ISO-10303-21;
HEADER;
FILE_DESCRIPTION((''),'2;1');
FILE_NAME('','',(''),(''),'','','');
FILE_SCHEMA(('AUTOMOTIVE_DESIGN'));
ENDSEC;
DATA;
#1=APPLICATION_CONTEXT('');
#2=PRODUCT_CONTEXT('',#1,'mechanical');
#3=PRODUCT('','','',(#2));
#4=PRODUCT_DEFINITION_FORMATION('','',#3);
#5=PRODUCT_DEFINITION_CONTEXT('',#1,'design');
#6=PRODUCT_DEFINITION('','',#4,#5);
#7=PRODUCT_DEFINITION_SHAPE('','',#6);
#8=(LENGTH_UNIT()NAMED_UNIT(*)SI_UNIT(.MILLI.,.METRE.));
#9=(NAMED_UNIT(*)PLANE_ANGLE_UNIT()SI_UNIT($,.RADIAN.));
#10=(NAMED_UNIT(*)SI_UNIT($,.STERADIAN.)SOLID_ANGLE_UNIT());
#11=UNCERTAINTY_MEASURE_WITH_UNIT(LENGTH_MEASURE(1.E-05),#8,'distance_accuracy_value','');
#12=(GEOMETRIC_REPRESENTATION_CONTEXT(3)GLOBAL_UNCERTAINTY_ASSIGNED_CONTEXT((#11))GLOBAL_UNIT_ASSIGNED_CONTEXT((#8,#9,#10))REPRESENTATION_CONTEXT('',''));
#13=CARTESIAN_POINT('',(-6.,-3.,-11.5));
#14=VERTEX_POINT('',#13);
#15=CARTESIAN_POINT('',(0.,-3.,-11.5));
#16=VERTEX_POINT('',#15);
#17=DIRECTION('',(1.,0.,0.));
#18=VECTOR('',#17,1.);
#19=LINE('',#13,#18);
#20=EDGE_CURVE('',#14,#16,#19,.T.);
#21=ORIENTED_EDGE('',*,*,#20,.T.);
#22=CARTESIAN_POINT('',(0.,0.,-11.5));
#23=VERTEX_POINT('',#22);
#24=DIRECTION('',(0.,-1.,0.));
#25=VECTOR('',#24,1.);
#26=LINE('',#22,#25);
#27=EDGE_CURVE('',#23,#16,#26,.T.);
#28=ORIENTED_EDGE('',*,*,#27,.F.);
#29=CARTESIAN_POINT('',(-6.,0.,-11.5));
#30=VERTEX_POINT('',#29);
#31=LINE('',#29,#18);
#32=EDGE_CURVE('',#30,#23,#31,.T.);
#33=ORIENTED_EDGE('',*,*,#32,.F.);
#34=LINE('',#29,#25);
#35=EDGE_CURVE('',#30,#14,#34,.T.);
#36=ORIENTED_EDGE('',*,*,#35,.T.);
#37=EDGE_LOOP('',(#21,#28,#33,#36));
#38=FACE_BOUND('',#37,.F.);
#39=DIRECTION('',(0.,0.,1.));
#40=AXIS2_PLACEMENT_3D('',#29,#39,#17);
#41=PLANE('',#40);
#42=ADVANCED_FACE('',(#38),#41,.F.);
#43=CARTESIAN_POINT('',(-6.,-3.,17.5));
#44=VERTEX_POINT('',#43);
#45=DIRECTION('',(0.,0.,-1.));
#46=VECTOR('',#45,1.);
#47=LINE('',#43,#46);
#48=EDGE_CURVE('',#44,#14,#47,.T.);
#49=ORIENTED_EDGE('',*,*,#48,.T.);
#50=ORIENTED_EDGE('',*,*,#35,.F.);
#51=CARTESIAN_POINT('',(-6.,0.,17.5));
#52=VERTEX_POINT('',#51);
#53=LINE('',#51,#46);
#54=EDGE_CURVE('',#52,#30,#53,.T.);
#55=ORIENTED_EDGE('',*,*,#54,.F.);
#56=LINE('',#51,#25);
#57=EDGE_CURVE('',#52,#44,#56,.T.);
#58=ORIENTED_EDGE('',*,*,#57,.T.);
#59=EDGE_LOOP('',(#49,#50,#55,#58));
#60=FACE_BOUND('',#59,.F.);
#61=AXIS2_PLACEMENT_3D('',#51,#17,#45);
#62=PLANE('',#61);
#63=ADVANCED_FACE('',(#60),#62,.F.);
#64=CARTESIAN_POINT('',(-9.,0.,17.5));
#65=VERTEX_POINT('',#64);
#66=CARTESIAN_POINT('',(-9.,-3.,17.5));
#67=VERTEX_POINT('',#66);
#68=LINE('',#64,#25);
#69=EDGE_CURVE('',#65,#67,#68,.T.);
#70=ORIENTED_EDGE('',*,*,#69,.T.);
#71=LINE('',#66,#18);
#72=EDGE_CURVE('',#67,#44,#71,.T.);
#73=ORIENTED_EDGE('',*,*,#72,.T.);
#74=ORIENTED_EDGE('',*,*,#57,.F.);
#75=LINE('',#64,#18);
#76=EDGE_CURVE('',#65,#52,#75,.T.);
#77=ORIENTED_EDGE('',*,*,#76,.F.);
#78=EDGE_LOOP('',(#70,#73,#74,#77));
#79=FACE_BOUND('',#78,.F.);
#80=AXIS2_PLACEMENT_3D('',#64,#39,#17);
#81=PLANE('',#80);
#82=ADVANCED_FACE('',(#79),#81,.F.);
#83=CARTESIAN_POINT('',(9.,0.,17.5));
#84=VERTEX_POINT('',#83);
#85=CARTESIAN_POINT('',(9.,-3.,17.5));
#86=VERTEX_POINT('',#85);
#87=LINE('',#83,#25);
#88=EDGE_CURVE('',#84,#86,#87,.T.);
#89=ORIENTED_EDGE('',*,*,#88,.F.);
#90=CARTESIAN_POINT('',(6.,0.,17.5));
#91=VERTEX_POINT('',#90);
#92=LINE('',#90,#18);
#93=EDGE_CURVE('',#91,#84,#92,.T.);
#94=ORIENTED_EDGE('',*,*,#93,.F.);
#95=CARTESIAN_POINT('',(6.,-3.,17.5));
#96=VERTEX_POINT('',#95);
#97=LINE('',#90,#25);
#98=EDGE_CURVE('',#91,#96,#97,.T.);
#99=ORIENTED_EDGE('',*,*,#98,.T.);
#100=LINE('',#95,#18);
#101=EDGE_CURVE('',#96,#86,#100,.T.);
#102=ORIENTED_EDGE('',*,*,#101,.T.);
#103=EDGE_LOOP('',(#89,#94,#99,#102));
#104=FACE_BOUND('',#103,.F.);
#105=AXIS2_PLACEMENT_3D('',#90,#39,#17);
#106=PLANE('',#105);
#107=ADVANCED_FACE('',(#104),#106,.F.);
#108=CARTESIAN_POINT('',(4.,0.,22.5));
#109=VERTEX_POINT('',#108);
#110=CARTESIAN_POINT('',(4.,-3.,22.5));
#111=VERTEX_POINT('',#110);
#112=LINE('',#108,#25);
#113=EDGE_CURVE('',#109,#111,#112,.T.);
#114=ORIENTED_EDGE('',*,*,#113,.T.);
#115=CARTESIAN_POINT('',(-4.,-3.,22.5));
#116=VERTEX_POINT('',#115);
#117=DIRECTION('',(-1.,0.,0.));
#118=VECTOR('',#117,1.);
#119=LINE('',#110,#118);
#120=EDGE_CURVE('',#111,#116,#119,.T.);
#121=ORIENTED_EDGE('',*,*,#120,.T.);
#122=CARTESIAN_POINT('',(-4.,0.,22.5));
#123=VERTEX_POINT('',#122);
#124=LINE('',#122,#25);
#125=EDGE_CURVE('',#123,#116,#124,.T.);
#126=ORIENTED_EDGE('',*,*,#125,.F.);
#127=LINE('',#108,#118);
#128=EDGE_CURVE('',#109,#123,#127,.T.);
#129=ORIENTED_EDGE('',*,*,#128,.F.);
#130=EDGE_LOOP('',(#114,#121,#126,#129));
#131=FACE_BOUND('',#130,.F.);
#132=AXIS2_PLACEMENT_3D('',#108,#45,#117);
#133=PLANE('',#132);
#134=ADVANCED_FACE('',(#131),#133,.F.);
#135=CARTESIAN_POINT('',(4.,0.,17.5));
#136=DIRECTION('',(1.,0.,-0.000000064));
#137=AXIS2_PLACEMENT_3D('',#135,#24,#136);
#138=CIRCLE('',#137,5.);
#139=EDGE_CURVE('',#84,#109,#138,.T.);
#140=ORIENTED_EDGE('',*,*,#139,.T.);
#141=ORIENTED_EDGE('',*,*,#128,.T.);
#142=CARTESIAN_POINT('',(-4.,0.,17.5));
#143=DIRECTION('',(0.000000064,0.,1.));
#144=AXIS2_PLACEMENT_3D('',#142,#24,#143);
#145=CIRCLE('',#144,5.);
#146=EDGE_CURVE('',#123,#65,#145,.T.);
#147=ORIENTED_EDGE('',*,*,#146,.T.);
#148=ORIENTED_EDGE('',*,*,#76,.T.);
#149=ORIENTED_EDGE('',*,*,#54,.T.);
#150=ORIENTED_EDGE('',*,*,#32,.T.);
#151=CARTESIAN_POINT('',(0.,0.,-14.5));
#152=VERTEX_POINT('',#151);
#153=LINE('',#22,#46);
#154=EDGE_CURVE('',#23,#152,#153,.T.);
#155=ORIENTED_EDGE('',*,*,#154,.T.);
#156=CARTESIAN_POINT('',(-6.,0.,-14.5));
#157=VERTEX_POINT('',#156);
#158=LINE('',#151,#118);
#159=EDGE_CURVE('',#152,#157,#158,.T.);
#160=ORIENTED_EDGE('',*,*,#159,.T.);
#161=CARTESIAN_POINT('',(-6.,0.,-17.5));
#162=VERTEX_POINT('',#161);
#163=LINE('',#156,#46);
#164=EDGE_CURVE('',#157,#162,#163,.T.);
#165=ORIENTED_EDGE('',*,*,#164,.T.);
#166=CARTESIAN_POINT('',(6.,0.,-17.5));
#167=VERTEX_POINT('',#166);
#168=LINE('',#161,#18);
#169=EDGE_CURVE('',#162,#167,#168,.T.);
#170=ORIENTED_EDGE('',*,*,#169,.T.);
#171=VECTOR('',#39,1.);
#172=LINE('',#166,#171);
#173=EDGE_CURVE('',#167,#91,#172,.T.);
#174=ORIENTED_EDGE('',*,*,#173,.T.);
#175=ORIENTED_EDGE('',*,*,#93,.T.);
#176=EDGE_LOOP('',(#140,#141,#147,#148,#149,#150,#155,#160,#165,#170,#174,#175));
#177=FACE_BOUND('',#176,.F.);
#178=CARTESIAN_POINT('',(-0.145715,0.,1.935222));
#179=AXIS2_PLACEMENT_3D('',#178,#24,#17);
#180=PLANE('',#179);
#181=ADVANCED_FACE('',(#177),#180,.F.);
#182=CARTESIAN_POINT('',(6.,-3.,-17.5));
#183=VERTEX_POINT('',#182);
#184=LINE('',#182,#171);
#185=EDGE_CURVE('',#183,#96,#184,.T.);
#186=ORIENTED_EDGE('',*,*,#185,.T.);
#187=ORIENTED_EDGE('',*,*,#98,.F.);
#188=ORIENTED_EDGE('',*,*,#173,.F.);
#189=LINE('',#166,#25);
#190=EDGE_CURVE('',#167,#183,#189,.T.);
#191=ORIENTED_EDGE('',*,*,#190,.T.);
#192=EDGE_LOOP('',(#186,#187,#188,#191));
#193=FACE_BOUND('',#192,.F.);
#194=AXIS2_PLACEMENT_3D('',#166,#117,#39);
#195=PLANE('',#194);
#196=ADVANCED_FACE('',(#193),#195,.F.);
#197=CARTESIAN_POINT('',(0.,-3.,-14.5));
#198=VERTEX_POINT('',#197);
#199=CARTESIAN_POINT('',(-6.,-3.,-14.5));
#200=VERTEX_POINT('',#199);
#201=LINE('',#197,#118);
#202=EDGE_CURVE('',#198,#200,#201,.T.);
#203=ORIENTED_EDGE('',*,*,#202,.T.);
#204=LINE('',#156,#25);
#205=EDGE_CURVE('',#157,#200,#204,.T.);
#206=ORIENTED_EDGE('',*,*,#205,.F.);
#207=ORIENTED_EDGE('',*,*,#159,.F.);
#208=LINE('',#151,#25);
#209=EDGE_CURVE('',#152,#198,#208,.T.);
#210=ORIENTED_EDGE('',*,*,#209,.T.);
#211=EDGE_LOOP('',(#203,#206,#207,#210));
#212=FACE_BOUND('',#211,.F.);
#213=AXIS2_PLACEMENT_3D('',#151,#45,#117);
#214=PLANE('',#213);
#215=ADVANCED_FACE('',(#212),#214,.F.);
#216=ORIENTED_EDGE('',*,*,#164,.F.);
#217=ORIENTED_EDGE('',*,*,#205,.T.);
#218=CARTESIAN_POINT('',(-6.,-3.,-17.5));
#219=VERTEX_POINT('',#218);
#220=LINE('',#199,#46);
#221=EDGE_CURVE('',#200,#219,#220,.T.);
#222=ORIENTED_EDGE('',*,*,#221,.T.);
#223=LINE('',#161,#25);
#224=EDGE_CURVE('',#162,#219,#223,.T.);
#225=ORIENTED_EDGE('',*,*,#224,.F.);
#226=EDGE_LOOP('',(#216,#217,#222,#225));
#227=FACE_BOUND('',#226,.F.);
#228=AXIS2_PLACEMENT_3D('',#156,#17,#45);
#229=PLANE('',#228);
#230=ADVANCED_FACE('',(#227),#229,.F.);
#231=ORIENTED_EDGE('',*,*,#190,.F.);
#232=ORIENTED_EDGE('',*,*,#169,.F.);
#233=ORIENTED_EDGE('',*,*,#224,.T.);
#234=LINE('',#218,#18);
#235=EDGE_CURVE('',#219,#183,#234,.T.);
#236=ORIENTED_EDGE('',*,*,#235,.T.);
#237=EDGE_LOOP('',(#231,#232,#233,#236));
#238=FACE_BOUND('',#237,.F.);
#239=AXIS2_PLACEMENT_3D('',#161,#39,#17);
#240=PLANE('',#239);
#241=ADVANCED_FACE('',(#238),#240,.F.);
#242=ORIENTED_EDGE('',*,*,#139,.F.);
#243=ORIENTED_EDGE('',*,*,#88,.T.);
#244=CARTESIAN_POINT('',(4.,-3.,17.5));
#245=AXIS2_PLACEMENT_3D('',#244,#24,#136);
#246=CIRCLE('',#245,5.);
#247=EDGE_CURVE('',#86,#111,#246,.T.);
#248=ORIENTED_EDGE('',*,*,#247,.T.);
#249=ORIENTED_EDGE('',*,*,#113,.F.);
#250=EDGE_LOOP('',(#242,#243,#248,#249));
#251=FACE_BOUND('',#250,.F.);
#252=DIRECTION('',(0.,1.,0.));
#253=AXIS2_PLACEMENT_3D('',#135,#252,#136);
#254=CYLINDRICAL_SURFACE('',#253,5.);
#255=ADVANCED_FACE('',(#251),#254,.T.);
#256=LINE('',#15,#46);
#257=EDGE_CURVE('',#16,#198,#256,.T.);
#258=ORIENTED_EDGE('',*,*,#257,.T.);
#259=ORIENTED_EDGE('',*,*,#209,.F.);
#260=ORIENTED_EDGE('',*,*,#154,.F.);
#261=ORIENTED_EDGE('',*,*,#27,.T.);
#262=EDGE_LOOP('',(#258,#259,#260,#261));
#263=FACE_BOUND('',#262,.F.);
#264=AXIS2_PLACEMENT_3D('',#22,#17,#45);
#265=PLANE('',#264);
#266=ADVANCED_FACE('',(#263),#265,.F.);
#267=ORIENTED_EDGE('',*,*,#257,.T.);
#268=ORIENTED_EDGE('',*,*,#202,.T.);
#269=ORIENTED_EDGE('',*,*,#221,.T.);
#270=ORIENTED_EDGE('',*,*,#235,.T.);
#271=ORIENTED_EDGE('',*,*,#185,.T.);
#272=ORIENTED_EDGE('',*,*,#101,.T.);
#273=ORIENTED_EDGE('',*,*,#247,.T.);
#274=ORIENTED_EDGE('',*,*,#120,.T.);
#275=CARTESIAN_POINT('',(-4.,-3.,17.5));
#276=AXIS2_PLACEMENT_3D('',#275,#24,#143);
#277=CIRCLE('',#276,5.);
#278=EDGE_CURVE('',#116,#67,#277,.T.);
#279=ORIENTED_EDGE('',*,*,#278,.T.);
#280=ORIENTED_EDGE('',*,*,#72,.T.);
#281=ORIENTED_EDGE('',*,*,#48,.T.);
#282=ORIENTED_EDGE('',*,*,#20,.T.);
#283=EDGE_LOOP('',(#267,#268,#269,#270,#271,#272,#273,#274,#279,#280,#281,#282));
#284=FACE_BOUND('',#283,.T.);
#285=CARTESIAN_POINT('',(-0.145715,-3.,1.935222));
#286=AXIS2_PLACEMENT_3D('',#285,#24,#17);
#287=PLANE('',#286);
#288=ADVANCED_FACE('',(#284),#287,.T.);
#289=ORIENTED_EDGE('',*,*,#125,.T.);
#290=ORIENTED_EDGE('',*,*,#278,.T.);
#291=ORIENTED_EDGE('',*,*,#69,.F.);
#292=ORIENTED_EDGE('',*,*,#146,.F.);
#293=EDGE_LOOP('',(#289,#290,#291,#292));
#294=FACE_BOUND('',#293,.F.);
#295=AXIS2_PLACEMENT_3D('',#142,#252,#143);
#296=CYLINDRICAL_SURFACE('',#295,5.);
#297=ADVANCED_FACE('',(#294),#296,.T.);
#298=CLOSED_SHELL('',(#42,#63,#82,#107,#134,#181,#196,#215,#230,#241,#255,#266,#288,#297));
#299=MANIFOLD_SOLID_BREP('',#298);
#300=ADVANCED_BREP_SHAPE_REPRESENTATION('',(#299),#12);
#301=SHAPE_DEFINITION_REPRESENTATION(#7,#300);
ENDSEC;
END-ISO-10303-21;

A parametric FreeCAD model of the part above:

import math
import FreeCAD as App
import Part
import Sketcher
Q = App.Units.Quantity

doc = App.newDocument("Part")
params = doc.addObject("Spreadsheet::Sheet", "Params")
for row, (alias, value) in enumerate([
    ("sketch1_radius", "5 mm"),
    ("sketch1_width", "12 mm"),
    ("sketch1_width2", "3 mm"),
    ("sketch1_height", "35 mm"),
    ("pad1_length", "3 mm"),
], start=1):
    params.set(f"A{row}", alias)
    params.set(f"B{row}", "=" + value)
    params.setAlias(f"B{row}", alias)

body = doc.addObject("PartDesign::Body", "Body")

# Sketch on XZ plane
sketch1 = body.newObject("Sketcher::SketchObject", "Sketch")
sketch1.AttachmentSupport = (doc.getObject("XZ_Plane"), [""])
sketch1.MapMode = "FlatFace"
sketch1.addGeometry([
    Part.LineSegment(App.Vector(-6, -17.5, 0), App.Vector(6, -17.5, 0)),  # 0
    Part.LineSegment(App.Vector(6, -17.5, 0), App.Vector(6, 17.5, 0)),  # 1
    Part.LineSegment(App.Vector(6, 17.5, 0), App.Vector(9, 17.5, 0)),  # 2
    Part.ArcOfCircle(Part.Circle(App.Vector(4, 17.5, 0), App.Vector(0, 0, 1), 5), math.radians(0), math.radians(90)),  # 3
    Part.LineSegment(App.Vector(4, 22.5, 0), App.Vector(-4, 22.5, 0)),  # 4
    Part.ArcOfCircle(Part.Circle(App.Vector(-4, 17.5, 0), App.Vector(0, 0, 1), 5), math.radians(90), math.radians(180)),  # 5
    Part.LineSegment(App.Vector(-9, 17.5, 0), App.Vector(-6, 17.5, 0)),  # 6
    Part.LineSegment(App.Vector(-6, 17.5, 0), App.Vector(-6, -11.5, 0)),  # 7
    Part.LineSegment(App.Vector(-6, -11.5, 0), App.Vector(0, -11.5, 0)),  # 8
    Part.LineSegment(App.Vector(0, -11.5, 0), App.Vector(0, -14.5, 0)),  # 9
    Part.LineSegment(App.Vector(0, -14.5, 0), App.Vector(-6, -14.5, 0)),  # 10
    Part.LineSegment(App.Vector(-6, -14.5, 0), App.Vector(-6, -17.5, 0)),  # 11
], False)
sketch1.addConstraint([
    Sketcher.Constraint("Coincident", 0, 2, 1, 1),
    Sketcher.Constraint("Coincident", 1, 2, 2, 1),
    Sketcher.Constraint("Coincident", 2, 2, 3, 1),
    Sketcher.Constraint("Tangent", 3, 2, 4, 1),
    Sketcher.Constraint("Tangent", 4, 2, 5, 1),
    Sketcher.Constraint("Coincident", 5, 2, 6, 1),
    Sketcher.Constraint("Coincident", 6, 2, 7, 1),
    Sketcher.Constraint("Coincident", 7, 2, 8, 1),
    Sketcher.Constraint("Coincident", 8, 2, 9, 1),
    Sketcher.Constraint("Coincident", 9, 2, 10, 1),
    Sketcher.Constraint("Coincident", 10, 2, 11, 1),
    Sketcher.Constraint("Coincident", 11, 2, 0, 1),
    Sketcher.Constraint("Horizontal", 0),
    Sketcher.Constraint("Vertical", 1),
    Sketcher.Constraint("Horizontal", 2),
    Sketcher.Constraint("Horizontal", 4),
    Sketcher.Constraint("Horizontal", 6),
    Sketcher.Constraint("Vertical", 7),
    Sketcher.Constraint("Horizontal", 8),
    Sketcher.Constraint("Vertical", 9),
    Sketcher.Constraint("Horizontal", 10),
    Sketcher.Constraint("Vertical", 11),
    Sketcher.Constraint("Equal", 3, 5),
    Sketcher.Constraint("Symmetric", 0, 2, 6, 2, -1, 1),
    Sketcher.Constraint("Symmetric", 1, 2, 11, 2, -1, 1),
    Sketcher.Constraint("PointOnObject", 8, 2, -2),
    Sketcher.Constraint("Horizontal", 5, 3, 1, 2),
    Sketcher.Constraint("Equal", 2, 6),
    Sketcher.Constraint("Equal", 6, 9),
    Sketcher.Constraint("Equal", 9, 11),
    Sketcher.Constraint("Radius", 3, Q("5 mm")),
    Sketcher.Constraint("DistanceX", 0, 1, 0, 2, Q("12 mm")),
    Sketcher.Constraint("DistanceX", 2, 1, 2, 2, Q("3 mm")),
    Sketcher.Constraint("DistanceY", 1, 1, 1, 2, Q("35 mm")),
])
sketch1.setExpression("Constraints[30]", "Params.sketch1_radius")
sketch1.setExpression("Constraints[31]", "Params.sketch1_width")
sketch1.setExpression("Constraints[32]", "Params.sketch1_width2")
sketch1.setExpression("Constraints[33]", "Params.sketch1_height")
pad1 = body.newObject("PartDesign::Pad", "Pad")
pad1.Profile = sketch1
pad1.setExpression("Length", "Params.pad1_length")

doc.recompute()
